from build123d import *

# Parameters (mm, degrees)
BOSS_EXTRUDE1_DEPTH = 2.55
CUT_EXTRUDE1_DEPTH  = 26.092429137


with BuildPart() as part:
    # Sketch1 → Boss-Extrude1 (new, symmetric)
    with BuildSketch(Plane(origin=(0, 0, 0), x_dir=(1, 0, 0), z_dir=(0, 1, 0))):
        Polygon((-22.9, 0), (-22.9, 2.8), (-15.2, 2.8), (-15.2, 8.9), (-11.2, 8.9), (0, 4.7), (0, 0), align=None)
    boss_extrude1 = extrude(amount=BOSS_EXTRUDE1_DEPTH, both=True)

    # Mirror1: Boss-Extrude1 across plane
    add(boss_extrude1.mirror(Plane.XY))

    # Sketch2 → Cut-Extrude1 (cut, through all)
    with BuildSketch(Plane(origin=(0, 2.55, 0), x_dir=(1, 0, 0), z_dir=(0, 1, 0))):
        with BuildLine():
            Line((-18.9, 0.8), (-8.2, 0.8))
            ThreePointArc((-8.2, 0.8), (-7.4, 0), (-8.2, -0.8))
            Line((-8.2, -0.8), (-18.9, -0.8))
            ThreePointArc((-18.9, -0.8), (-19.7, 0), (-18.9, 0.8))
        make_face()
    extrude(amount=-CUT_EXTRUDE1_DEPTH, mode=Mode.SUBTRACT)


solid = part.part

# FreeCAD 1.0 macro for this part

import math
import FreeCAD as App
import Part
import Sketcher
from FreeCAD import Vector

doc = App.newDocument("Part")
params = doc.addObject("Spreadsheet::Sheet", "Params")
for row, (alias, value) in enumerate([
    ("sketch1_width", "4 mm"),
    ("sketch1_width2", "22.9 mm"),
    ("sketch1_width3", "7.7 mm"),
    ("sketch1_height", "2.8 mm"),
    ("sketch1_height2", "4.7 mm"),
    ("pad1_length", "5.1 mm"),
    ("sketch2_radius", "0.8 mm"),
    ("sketch2_width", "10.7 mm"),
], start=1):
    params.set(f"A{row}", alias)
    params.set(f"B{row}", "=" + value)
    params.setAlias(f"B{row}", alias)

body = doc.addObject("PartDesign::Body", "Body")

sketch1 = body.newObject("Sketcher::SketchObject", "Sketch")
sketch1.AttachmentSupport = (doc.getObject("XZ_Plane"), [""])
sketch1.MapMode = "FlatFace"
sketch1.addGeometry([
    Part.LineSegment(Vector(-22.9, -2.8, 0), Vector(-22.9, 0, 0)),
    Part.LineSegment(Vector(-22.9, 0, 0), Vector(0, 0, 0)),
    Part.LineSegment(Vector(0, 0, 0), Vector(0, -4.7, 0)),
    Part.LineSegment(Vector(0, -4.7, 0), Vector(-11.2, -8.9, 0)),
    Part.LineSegment(Vector(-11.2, -8.9, 0), Vector(-15.2, -8.9, 0)),
    Part.LineSegment(Vector(-15.2, -8.9, 0), Vector(-15.2, -2.8, 0)),
    Part.LineSegment(Vector(-15.2, -2.8, 0), Vector(-22.9, -2.8, 0)),
], False)
sketch1.addConstraint([
    Sketcher.Constraint("Coincident", 0, 2, 1, 1),
    Sketcher.Constraint("Coincident", 1, 2, 2, 1),
    Sketcher.Constraint("Coincident", 2, 2, 3, 1),
    Sketcher.Constraint("Coincident", 3, 2, 4, 1),
    Sketcher.Constraint("Coincident", 4, 2, 5, 1),
    Sketcher.Constraint("Coincident", 5, 2, 6, 1),
    Sketcher.Constraint("Coincident", 6, 2, 0, 1),
    Sketcher.Constraint("Vertical", 0),
    Sketcher.Constraint("Horizontal", 1),
    Sketcher.Constraint("Vertical", 2),
    Sketcher.Constraint("Horizontal", 4),
    Sketcher.Constraint("Vertical", 5),
    Sketcher.Constraint("Horizontal", 6),
    Sketcher.Constraint("Coincident", 1, 2, -1, 1),
    Sketcher.Constraint("DistanceX", 4, 2, 4, 1, 4.0),
    Sketcher.Constraint("DistanceX", 1, 1, 1, 2, 22.9),
    Sketcher.Constraint("DistanceX", 6, 2, 6, 1, 7.7),
    Sketcher.Constraint("DistanceY", 0, 1, 0, 2, 2.8),
    Sketcher.Constraint("DistanceY", 2, 2, 2, 1, 4.7),
    Sketcher.Constraint("DistanceY", 5, 1, 5, 2, 6.1),
])
sketch1.setExpression("Constraints[14]", "Params.sketch1_width")
sketch1.setExpression("Constraints[15]", "Params.sketch1_width2")
sketch1.setExpression("Constraints[16]", "Params.sketch1_width3")
sketch1.setExpression("Constraints[17]", "Params.sketch1_height")
sketch1.setExpression("Constraints[18]", "Params.sketch1_height2")
pad1 = body.newObject("PartDesign::Pad", "Pad")
pad1.Profile = sketch1
pad1.setExpression("Length", "Params.pad1_length")
pad1.Midplane = True
doc.recompute()

mirrored = body.newObject("PartDesign::Mirrored", "Mirrored")
mirrored.Originals = [pad1]
mirrored.MirrorPlane = (doc.getObject("XY_Plane"), [""])
body.Tip = mirrored

sketch2 = body.newObject("Sketcher::SketchObject", "Sketch001")
sketch2.AttachmentSupport = (doc.getObject("XZ_Plane"), [""])
sketch2.MapMode = "FlatFace"
sketch2.AttachmentOffset = App.Placement(Vector(0, 0, -2.55), App.Rotation())
sketch2.addGeometry([
    Part.LineSegment(Vector(-8.2, -0.8, 0), Vector(-18.9, -0.8, 0)),
    Part.ArcOfCircle(Part.Circle(Vector(-18.9, 0, 0), Vector(0, 0, 1), 0.8), math.radians(90), math.radians(270)),
    Part.LineSegment(Vector(-18.9, 0.8, 0), Vector(-8.2, 0.8, 0)),
    Part.ArcOfCircle(Part.Circle(Vector(-8.2, 0, 0), Vector(0, 0, 1), 0.8), math.radians(-90), math.radians(90)),
], False)
sketch2.addConstraint([
    Sketcher.Constraint("Tangent", 0, 2, 1, 2),
    Sketcher.Constraint("Tangent", 1, 1, 2, 1),
    Sketcher.Constraint("Tangent", 2, 2, 3, 2),
    Sketcher.Constraint("Tangent", 3, 1, 0, 1),
    Sketcher.Constraint("Horizontal", 0),
    Sketcher.Constraint("Horizontal", 2),
    Sketcher.Constraint("PointOnObject", 1, 3, -1),
    Sketcher.Constraint("Radius", 1, 0.8),
    Sketcher.Constraint("DistanceX", 0, 2, 0, 1, 10.7),
    Sketcher.Constraint("DistanceX", 1, 3, -1, 1, 18.9),
])
sketch2.setExpression("Constraints[7]", "Params.sketch2_radius")
sketch2.setExpression("Constraints[8]", "Params.sketch2_width")
pocket1 = body.newObject("PartDesign::Pocket", "Pocket")
pocket1.Profile = sketch2
pocket1.Type = "ThroughAll"
pocket1.Reversed = True

doc.recompute()
